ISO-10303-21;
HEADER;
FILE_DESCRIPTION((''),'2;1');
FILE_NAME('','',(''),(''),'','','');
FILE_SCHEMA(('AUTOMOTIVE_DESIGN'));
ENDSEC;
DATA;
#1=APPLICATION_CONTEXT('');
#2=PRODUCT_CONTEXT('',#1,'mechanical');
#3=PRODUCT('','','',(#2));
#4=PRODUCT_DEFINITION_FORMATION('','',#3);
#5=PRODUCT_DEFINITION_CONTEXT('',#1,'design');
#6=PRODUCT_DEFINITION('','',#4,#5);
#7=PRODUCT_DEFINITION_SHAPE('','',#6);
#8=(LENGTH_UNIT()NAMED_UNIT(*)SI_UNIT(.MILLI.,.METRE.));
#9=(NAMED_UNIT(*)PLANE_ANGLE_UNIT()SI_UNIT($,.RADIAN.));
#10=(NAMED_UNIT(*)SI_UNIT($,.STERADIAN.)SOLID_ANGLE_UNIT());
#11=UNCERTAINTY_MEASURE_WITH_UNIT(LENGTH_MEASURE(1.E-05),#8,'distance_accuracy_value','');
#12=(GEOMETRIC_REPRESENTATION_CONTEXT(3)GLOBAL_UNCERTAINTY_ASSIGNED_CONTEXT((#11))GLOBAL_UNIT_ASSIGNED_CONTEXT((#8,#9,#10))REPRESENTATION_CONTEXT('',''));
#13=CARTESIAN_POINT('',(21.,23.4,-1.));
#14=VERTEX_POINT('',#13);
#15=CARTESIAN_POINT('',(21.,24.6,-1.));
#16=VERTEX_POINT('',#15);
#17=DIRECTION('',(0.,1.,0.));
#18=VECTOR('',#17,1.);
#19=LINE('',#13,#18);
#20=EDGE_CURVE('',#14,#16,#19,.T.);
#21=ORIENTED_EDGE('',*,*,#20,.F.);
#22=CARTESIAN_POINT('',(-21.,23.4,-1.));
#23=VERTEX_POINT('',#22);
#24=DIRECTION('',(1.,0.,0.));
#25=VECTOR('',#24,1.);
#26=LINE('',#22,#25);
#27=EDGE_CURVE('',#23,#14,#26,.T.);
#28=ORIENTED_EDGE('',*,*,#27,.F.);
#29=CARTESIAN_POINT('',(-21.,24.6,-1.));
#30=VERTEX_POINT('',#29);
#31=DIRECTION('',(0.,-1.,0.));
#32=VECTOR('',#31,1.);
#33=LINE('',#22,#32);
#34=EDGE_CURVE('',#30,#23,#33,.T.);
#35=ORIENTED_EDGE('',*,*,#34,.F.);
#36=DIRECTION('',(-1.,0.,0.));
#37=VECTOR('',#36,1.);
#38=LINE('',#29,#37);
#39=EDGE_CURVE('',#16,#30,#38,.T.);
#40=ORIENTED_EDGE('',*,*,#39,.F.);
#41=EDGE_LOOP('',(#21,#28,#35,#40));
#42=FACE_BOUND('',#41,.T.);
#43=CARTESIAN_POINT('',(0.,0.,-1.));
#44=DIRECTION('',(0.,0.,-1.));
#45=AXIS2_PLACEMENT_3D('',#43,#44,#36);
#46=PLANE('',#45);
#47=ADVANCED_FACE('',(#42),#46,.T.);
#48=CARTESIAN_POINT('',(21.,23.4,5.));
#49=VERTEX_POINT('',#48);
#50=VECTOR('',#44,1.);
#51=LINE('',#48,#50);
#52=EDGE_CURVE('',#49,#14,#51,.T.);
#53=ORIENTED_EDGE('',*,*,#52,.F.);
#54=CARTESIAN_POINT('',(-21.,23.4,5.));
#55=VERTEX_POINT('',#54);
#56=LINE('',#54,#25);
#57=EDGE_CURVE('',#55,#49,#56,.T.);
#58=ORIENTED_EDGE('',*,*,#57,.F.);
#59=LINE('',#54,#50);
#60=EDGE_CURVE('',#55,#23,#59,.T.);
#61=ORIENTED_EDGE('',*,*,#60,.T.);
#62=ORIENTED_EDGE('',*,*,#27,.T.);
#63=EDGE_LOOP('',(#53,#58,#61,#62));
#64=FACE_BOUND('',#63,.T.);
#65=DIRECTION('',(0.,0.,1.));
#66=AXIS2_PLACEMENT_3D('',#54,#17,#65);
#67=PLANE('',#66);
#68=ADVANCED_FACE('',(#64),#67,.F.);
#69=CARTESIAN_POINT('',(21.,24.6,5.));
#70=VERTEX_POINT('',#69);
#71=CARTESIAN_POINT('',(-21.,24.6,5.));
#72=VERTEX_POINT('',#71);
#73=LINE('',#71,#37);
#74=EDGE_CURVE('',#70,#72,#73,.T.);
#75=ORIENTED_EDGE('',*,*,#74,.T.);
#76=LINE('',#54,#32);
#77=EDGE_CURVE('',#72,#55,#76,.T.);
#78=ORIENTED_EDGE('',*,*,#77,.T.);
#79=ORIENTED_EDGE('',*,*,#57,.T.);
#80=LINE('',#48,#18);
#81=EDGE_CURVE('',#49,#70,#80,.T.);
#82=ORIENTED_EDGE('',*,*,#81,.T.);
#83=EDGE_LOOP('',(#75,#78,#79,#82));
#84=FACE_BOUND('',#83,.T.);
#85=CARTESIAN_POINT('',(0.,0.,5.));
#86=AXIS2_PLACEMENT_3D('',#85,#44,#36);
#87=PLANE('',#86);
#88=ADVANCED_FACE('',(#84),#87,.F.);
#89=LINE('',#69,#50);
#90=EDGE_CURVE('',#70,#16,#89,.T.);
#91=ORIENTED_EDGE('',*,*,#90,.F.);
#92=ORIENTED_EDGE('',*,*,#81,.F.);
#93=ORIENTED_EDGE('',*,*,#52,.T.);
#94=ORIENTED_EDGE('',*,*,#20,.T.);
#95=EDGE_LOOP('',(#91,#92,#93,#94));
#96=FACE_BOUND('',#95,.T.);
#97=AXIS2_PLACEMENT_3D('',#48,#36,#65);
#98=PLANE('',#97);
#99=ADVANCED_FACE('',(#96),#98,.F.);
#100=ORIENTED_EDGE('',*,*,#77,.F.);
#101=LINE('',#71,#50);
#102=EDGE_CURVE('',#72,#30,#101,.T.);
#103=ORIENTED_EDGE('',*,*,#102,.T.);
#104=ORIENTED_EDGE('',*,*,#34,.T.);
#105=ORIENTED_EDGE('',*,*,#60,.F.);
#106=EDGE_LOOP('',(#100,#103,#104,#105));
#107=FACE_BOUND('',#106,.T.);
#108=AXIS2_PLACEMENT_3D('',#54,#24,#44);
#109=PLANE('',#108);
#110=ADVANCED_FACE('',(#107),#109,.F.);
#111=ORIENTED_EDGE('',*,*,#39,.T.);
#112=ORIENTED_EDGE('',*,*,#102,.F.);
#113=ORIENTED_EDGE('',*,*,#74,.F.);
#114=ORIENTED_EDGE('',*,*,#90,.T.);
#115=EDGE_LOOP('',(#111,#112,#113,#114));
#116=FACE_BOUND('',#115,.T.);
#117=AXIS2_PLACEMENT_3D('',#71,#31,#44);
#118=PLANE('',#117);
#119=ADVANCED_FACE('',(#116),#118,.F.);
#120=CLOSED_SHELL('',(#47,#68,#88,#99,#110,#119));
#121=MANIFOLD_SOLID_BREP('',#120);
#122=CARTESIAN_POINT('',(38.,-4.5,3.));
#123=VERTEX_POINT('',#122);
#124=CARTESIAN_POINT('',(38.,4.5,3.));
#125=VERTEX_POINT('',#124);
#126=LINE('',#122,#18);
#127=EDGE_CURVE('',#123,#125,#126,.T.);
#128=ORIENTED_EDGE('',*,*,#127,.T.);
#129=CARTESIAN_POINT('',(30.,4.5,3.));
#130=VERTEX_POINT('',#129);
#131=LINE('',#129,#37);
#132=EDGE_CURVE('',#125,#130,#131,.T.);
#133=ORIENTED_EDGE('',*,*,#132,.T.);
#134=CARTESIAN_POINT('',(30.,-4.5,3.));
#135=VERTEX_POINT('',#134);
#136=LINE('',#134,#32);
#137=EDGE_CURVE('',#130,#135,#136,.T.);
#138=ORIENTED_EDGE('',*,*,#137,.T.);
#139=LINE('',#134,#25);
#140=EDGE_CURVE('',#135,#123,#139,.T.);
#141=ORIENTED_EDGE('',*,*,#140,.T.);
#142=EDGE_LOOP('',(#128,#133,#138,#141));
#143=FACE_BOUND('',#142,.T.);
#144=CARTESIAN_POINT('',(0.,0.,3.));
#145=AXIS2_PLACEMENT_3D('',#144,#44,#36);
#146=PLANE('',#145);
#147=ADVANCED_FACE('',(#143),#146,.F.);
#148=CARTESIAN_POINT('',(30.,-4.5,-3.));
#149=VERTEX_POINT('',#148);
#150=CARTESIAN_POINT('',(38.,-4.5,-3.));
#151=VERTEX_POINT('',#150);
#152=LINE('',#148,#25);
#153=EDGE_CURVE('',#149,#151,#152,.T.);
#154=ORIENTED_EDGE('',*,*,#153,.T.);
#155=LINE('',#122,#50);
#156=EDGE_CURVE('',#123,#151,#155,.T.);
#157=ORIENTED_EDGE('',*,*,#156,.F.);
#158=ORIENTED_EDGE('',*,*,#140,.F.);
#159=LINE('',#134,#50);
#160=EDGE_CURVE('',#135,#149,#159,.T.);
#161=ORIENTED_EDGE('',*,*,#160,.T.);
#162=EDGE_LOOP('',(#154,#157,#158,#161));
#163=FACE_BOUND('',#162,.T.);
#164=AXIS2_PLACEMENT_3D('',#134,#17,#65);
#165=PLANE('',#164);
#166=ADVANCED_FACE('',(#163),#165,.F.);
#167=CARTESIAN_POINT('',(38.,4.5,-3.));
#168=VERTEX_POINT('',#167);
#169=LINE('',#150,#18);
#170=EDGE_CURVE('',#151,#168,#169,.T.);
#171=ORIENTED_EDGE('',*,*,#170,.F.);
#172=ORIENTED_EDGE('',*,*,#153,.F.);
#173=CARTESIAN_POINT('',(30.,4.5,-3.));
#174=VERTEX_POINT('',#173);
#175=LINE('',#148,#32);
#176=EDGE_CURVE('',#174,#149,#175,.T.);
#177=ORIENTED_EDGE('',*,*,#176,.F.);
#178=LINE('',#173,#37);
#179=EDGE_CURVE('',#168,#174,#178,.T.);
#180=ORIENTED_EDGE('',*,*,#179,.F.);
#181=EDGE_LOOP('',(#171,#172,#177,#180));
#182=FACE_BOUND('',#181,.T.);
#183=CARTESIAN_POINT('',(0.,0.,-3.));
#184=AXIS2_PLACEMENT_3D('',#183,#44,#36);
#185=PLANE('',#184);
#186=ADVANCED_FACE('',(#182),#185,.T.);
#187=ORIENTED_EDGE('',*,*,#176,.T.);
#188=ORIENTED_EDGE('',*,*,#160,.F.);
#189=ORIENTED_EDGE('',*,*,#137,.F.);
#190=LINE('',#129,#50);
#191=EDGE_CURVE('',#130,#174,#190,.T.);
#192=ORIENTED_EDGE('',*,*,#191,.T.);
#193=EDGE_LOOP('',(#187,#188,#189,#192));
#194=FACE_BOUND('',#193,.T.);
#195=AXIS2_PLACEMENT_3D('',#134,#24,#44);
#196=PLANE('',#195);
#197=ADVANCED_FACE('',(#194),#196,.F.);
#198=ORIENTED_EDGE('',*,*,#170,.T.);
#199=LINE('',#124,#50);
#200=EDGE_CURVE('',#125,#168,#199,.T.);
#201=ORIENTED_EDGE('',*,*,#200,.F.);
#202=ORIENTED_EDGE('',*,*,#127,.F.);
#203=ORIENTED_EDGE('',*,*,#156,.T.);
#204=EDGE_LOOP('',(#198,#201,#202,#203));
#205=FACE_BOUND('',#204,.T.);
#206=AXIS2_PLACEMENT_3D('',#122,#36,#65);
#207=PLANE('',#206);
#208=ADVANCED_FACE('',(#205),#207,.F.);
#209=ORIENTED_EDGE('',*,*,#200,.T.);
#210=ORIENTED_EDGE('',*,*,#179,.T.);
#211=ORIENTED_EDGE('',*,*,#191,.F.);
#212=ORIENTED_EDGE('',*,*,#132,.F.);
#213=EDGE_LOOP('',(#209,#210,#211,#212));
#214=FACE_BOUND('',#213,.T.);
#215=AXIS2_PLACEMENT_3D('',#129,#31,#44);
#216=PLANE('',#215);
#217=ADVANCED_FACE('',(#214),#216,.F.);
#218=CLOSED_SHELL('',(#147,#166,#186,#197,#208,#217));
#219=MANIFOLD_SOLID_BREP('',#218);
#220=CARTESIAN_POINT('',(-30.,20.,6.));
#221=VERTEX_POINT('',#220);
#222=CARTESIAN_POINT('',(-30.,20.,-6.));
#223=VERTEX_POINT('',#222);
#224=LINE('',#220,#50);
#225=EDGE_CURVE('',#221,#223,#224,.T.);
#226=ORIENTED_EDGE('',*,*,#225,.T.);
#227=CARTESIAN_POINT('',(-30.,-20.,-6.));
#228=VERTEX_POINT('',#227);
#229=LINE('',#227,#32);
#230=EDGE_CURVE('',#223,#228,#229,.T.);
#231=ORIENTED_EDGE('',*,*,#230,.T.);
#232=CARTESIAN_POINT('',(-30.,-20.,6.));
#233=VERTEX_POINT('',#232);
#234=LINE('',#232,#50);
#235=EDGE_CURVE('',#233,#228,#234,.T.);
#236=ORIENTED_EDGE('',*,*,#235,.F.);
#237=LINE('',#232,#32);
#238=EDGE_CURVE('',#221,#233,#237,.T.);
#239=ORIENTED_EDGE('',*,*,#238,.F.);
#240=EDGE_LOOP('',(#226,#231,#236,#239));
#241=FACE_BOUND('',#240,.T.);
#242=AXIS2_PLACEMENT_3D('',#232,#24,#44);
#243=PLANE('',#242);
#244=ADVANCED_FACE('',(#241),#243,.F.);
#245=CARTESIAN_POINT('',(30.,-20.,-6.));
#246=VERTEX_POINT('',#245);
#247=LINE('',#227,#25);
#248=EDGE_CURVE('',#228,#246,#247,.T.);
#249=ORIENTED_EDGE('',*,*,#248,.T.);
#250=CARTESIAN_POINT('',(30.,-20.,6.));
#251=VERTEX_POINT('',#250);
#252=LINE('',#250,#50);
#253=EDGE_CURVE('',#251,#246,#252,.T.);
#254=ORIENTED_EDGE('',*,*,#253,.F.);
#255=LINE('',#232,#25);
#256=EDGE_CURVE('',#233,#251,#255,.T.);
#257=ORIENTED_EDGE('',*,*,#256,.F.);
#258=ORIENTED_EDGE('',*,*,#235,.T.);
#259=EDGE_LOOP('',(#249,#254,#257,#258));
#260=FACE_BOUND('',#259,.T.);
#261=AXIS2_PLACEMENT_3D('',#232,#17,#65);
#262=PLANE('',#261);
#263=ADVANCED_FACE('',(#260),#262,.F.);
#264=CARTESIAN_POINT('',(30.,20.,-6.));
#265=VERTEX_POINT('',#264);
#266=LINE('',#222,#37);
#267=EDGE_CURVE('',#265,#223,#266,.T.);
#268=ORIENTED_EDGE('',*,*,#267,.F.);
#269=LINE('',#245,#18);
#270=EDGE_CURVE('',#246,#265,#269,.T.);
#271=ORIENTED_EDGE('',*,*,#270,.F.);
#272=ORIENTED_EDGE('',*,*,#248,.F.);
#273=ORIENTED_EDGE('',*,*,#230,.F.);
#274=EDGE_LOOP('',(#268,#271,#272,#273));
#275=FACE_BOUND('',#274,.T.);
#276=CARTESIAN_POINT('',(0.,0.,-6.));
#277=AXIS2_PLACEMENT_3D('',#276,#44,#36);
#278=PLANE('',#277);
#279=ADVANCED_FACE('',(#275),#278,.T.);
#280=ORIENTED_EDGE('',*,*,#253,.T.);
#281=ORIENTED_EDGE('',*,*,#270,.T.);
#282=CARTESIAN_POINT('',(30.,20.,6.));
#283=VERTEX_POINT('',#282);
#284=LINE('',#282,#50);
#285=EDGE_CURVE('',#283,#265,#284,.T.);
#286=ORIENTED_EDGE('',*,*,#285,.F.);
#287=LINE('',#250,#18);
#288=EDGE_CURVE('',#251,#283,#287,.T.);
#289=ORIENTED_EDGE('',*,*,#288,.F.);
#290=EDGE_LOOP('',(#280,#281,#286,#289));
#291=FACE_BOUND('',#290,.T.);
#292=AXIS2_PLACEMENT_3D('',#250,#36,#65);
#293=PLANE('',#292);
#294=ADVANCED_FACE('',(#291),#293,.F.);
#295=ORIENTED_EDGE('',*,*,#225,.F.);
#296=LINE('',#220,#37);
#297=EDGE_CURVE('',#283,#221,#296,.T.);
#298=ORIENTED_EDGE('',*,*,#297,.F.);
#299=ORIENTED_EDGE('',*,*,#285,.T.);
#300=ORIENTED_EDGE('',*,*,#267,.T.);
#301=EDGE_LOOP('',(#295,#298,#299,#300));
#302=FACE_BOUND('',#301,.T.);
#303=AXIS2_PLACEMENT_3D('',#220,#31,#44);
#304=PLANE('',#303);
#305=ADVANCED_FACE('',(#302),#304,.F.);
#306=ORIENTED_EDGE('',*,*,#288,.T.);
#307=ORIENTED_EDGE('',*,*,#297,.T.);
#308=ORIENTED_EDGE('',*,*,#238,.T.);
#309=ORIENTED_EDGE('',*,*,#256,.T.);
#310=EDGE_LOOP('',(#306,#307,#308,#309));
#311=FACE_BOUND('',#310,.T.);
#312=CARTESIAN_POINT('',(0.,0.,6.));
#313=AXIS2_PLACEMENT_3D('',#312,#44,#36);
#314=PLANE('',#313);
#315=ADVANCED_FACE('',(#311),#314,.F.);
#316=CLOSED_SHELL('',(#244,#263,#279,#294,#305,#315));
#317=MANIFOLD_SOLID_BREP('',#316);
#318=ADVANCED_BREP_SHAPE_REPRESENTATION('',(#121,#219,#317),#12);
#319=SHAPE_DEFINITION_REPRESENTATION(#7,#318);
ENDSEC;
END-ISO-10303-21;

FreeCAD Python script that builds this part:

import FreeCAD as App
import Part
import Sketcher
Q = App.Units.Quantity


def add_polygon(sketch, points):
    """Adds a closed chain of lines whose ends are joined by coincident constraints."""
    first, n = sketch.GeometryCount, len(points)
    for a, b in zip(points, points[1:] + points[:1]):
        sketch.addGeometry(Part.LineSegment(App.Vector(*a, 0), App.Vector(*b, 0)), False)
    for i in range(n):
        sketch.addConstraint(Sketcher.Constraint("Coincident", first + i, 2, first + (i + 1) % n, 1))

doc = App.newDocument("Part")
body = doc.addObject("PartDesign::Body", "Body")

sketch1 = doc.addObject("Sketcher::SketchObject", "Sketch")
body.addObject(sketch1)
sketch1.AttachmentSupport = (doc.XY_Plane, [""])
sketch1.MapMode = "FlatFace"
sketch1.AttachmentOffset = App.Placement(App.Vector(0, 0, -6), App.Rotation())
add_polygon(sketch1, [(-30, 20), (-30, -20), (30, -20), (30, 20)])
sketch1.addConstraint(Sketcher.Constraint("Vertical", 0))
sketch1.addConstraint(Sketcher.Constraint("Horizontal", 1))
sketch1.addConstraint(Sketcher.Constraint("Vertical", 2))
sketch1.addConstraint(Sketcher.Constraint("Horizontal", 3))
sketch1.addConstraint(Sketcher.Constraint("Symmetric", 0, 2, 2, 2, -1, 1))
sketch1.addConstraint(Sketcher.Constraint("DistanceX", 1, 1, 1, 2, Q("60 mm")))
sketch1.addConstraint(Sketcher.Constraint("DistanceY", 0, 2, 0, 1, Q("40 mm")))
pad1 = doc.addObject("PartDesign::Pad", "Pad")
body.addObject(pad1)
pad1.Profile = sketch1
pad1.Length = 12
body2 = doc.addObject("PartDesign::Body", "Body001")

sketch2 = doc.addObject("Sketcher::SketchObject", "Sketch001")
body2.addObject(sketch2)
sketch2.AttachmentSupport = (doc.getObject("XY_Plane001"), [""])
sketch2.MapMode = "FlatFace"
sketch2.AttachmentOffset = App.Placement(App.Vector(0, 0, -3), App.Rotation())
add_polygon(sketch2, [(30, 4), (30, -4), (38, -4), (38, 4)])
sketch2.addConstraint(Sketcher.Constraint("Vertical", 0))
sketch2.addConstraint(Sketcher.Constraint("Horizontal", 1))
sketch2.addConstraint(Sketcher.Constraint("Vertical", 2))
sketch2.addConstraint(Sketcher.Constraint("Horizontal", 3))
sketch2.addConstraint(Sketcher.Constraint("DistanceX", 1, 1, 1, 2, Q("8 mm")))
sketch2.addConstraint(Sketcher.Constraint("DistanceY", 0, 2, 0, 1, Q("9 mm")))
sketch2.addConstraint(Sketcher.Constraint("DistanceX", -1, 1, 0, 2, Q("30 mm")))
sketch2.addConstraint(Sketcher.Constraint("DistanceY", 0, 2, -1, 1, Q("4.5 mm")))
pad2 = doc.addObject("PartDesign::Pad", "Pad001")
body2.addObject(pad2)
pad2.Profile = sketch2
pad2.Length = 6
body3 = doc.addObject("PartDesign::Body", "Body002")

sketch3 = doc.addObject("Sketcher::SketchObject", "Sketch002")
body3.addObject(sketch3)
sketch3.AttachmentSupport = (doc.getObject("XY_Plane002"), [""])
sketch3.MapMode = "FlatFace"
sketch3.AttachmentOffset = App.Placement(App.Vector(0, 0, -1), App.Rotation())
add_polygon(sketch3, [(-21, 24.6), (-21, 23.4), (21, 23.4), (21, 24.6)])
sketch3.addConstraint(Sketcher.Constraint("Vertical", 0))
sketch3.addConstraint(Sketcher.Constraint("Horizontal", 1))
sketch3.addConstraint(Sketcher.Constraint("Vertical", 2))
sketch3.addConstraint(Sketcher.Constraint("Horizontal", 3))
sketch3.addConstraint(Sketcher.Constraint("DistanceX", 1, 1, 1, 2, Q("42 mm")))
sketch3.addConstraint(Sketcher.Constraint("DistanceY", 0, 2, 0, 1, Q("1.2 mm")))
sketch3.addConstraint(Sketcher.Constraint("DistanceX", 0, 2, -1, 1, Q("21 mm")))
sketch3.addConstraint(Sketcher.Constraint("DistanceY", -1, 1, 0, 2, Q("23.4 mm")))
pad3 = doc.addObject("PartDesign::Pad", "Pad002")
body3.addObject(pad3)
pad3.Profile = sketch3
pad3.Length = 6

doc.recompute()
